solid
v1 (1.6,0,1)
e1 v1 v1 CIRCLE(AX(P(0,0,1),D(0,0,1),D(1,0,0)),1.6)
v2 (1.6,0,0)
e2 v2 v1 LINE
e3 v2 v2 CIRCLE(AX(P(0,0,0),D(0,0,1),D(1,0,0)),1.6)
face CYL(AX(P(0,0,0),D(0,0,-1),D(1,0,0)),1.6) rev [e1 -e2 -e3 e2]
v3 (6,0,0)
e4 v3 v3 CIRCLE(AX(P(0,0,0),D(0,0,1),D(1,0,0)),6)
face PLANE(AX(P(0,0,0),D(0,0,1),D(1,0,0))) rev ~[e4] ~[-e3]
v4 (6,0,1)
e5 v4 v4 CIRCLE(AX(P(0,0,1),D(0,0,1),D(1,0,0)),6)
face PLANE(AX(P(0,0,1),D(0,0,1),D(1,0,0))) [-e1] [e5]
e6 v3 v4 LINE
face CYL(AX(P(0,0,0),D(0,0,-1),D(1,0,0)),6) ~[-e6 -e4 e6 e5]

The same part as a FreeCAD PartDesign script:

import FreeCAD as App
import Part
import Sketcher

doc = App.newDocument("Part")
params = doc.addObject("Spreadsheet::Sheet", "Params")
for row, (alias, value) in enumerate([
    ("sketch1_diameter", "12 mm"),
    ("sketch1_diameter2", "3.2 mm"),
    ("pad1_length", "1 mm"),
], start=1):
    params.set(f"A{row}", alias)
    params.set(f"B{row}", "=" + value)
    params.setAlias(f"B{row}", alias)

body = doc.addObject("PartDesign::Body", "Body")

# Sketch on XY plane
sketch1 = body.newObject("Sketcher::SketchObject", "Sketch")
sketch1.AttachmentSupport = (doc.getObject("XY_Plane"), [""])
sketch1.MapMode = "FlatFace"
sketch1.addGeometry(Part.Circle(App.Vector(0, 0, 0), App.Vector(0, 0, 1), 6), False)
sketch1.addGeometry(Part.Circle(App.Vector(0, 0, 0), App.Vector(0, 0, 1), 1.6), False)
sketch1.addConstraint(Sketcher.Constraint("Coincident", 0, 3, -1, 1))
sketch1.addConstraint(Sketcher.Constraint("Coincident", 1, 3, -1, 1))
sketch1.addConstraint(Sketcher.Constraint("Diameter", 0, 12.0))
sketch1.addConstraint(Sketcher.Constraint("Diameter", 1, 3.2))
sketch1.setExpression("Constraints[2]", "Params.sketch1_diameter")
sketch1.setExpression("Constraints[3]", "Params.sketch1_diameter2")
pad1 = body.newObject("PartDesign::Pad", "Pad")
pad1.Profile = sketch1
pad1.setExpression("Length", "Params.pad1_length")

doc.recompute()
